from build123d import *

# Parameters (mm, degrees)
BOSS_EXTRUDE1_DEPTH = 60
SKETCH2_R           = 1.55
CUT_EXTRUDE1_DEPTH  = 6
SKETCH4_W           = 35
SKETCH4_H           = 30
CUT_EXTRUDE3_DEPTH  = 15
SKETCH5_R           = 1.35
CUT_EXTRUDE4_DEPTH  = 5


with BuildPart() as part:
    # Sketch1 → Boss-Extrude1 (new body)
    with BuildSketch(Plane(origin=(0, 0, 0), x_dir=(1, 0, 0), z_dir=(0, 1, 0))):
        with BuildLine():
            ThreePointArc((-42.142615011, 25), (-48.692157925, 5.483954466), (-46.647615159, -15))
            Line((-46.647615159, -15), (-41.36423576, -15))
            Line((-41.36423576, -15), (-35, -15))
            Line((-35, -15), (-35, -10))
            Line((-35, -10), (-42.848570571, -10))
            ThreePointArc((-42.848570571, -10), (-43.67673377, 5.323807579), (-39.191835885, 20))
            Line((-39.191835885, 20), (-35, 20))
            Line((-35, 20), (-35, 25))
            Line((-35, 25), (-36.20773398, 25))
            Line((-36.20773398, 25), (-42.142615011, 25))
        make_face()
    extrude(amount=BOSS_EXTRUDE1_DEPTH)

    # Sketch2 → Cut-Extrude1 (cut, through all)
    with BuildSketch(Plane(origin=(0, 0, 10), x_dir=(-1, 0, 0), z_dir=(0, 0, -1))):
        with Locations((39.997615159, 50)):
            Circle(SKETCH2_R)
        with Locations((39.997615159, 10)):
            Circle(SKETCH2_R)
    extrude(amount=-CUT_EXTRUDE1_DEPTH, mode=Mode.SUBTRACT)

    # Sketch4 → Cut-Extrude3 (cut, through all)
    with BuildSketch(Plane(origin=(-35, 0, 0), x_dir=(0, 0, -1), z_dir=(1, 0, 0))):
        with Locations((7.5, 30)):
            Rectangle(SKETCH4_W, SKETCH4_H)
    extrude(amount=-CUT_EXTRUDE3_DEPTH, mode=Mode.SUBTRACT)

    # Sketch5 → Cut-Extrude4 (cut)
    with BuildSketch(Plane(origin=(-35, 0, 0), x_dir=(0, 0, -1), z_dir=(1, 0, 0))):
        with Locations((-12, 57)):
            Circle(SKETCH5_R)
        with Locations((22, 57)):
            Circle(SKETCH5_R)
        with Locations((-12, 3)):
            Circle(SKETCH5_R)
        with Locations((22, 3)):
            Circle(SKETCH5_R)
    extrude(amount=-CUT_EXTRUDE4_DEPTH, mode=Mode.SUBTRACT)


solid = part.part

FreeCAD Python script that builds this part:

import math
import FreeCAD as App
import Part
import Sketcher
from FreeCAD import Vector


def add_polygon(sketch, points):
    """Adds a closed chain of lines whose ends are joined by coincident constraints."""
    first, n = sketch.GeometryCount, len(points)
    for a, b in zip(points, points[1:] + points[:1]):
        sketch.addGeometry(Part.LineSegment(App.Vector(*a, 0), App.Vector(*b, 0)), False)
    for i in range(n):
        sketch.addConstraint(Sketcher.Constraint("Coincident", first + i, 2, first + (i + 1) % n, 1))

doc = App.newDocument("Part")
body = doc.addObject("PartDesign::Body", "Body")

# Sketch on XZ plane
sketch1 = doc.addObject("Sketcher::SketchObject", "Sketch")
body.addObject(sketch1)
sketch1.AttachmentSupport = (doc.XZ_Plane, [""])
sketch1.MapMode = "FlatFace"
sketch1.addGeometry([
    Part.ArcOfCircle(Part.Circle(Vector(0, 0, 0), Vector(0, 0, 1), 49), math.radians(162), math.radians(211)),  # 0
    Part.LineSegment(Vector(-46.6, 15, 0), Vector(-35, 15, 0)),  # 1
    Part.LineSegment(Vector(-35, 15, 0), Vector(-35, 10, 0)),  # 2
    Part.LineSegment(Vector(-35, 10, 0), Vector(-42.8, 10, 0)),  # 3
    Part.ArcOfCircle(Part.Circle(Vector(0, 0, 0), Vector(0, 0, 1), 44), math.radians(167), math.radians(207)),  # 4
    Part.LineSegment(Vector(-39.2, -20, 0), Vector(-35, -20, 0)),  # 5
    Part.LineSegment(Vector(-35, -20, 0), Vector(-35, -25, 0)),  # 6
    Part.LineSegment(Vector(-35, -25, 0), Vector(-42.1, -25, 0)),  # 7
], False)
sketch1.addConstraint([
    Sketcher.Constraint("Coincident", 0, 1, 1, 1),
    Sketcher.Constraint("Coincident", 1, 2, 2, 1),
    Sketcher.Constraint("Coincident", 2, 2, 3, 1),
    Sketcher.Constraint("Coincident", 3, 2, 4, 1),
    Sketcher.Constraint("Coincident", 4, 2, 5, 1),
    Sketcher.Constraint("Coincident", 5, 2, 6, 1),
    Sketcher.Constraint("Coincident", 6, 2, 7, 1),
    Sketcher.Constraint("Coincident", 7, 2, 0, 2),
    Sketcher.Constraint("Horizontal", 1),
    Sketcher.Constraint("Vertical", 2),
    Sketcher.Constraint("Horizontal", 3),
    Sketcher.Constraint("Horizontal", 5),
    Sketcher.Constraint("Vertical", 6),
    Sketcher.Constraint("Horizontal", 7),
    Sketcher.Constraint("Coincident", 0, 3, -1, 1),
    Sketcher.Constraint("Coincident", 4, 3, -1, 1),
    Sketcher.Constraint("Vertical", 2, 2, 5, 2),
    Sketcher.Constraint("Equal", 2, 6),
    Sketcher.Constraint("Radius", 0, 49.0),
    Sketcher.Constraint("Radius", 4, 44.0),
    Sketcher.Constraint("DistanceY", 2, 2, 2, 1, 5.0),
    Sketcher.Constraint("DistanceY", -1, 1, 0, 1, 15.0),
    Sketcher.Constraint("DistanceX", 1, 2, -1, 1, 35.0),
    Sketcher.Constraint("DistanceY", 4, 2, -1, 1, 20.0),
])
pad1 = doc.addObject("PartDesign::Pad", "Pad")
body.addObject(pad1)
pad1.Profile = sketch1
pad1.Length = 60
pad1.Reversed = True

# Sketch on XY plane
sketch2 = doc.addObject("Sketcher::SketchObject", "Sketch001")
body.addObject(sketch2)
sketch2.AttachmentSupport = (doc.XY_Plane, [""])
sketch2.MapMode = "FlatFace"
sketch2.AttachmentOffset = App.Placement(Vector(0, 0, 10), App.Rotation())
sketch2.addGeometry([
    Part.Circle(Vector(-40, 50, 0), Vector(0, 0, 1), 1.6),
    Part.Circle(Vector(-40, 10, 0), Vector(0, 0, 1), 1.6),
], False)
sketch2.addConstraint([
    Sketcher.Constraint("Equal", 0, 1),
    Sketcher.Constraint("Vertical", 0, 3, 1, 3),
    Sketcher.Constraint("Diameter", 0, 3.1),
    Sketcher.Constraint("DistanceY", -1, 1, 0, 3, 50.0),
    Sketcher.Constraint("DistanceY", -1, 1, 1, 3, 10.0),
    Sketcher.Constraint("DistanceX", 0, 3, -1, 1, 39.997615),
])
pocket1 = doc.addObject("PartDesign::Pocket", "Pocket")
body.addObject(pocket1)
pocket1.Profile = sketch2
pocket1.Type = "ThroughAll"
pocket1.Reversed = True

# Sketch on YZ plane
sketch3 = doc.addObject("Sketcher::SketchObject", "Sketch002")
body.addObject(sketch3)
sketch3.AttachmentSupport = (doc.YZ_Plane, [""])
sketch3.MapMode = "FlatFace"
sketch3.AttachmentOffset = App.Placement(Vector(0, 0, -35), App.Rotation())
add_polygon(sketch3, [(45, 10), (15, 10), (15, -25), (45, -25)])  # lines 0-3
sketch3.addConstraint([
    Sketcher.Constraint("Horizontal", 0),
    Sketcher.Constraint("Vertical", 1),
    Sketcher.Constraint("Horizontal", 2),
    Sketcher.Constraint("Vertical", 3),
    Sketcher.Constraint("DistanceX", 0, 2, 0, 1, 30.0),
    Sketcher.Constraint("DistanceY", 1, 2, 1, 1, 35.0),
    Sketcher.Constraint("DistanceX", -1, 1, 0, 2, 15.0),
    Sketcher.Constraint("DistanceY", -1, 1, 0, 2, 10.0),
])
pocket2 = doc.addObject("PartDesign::Pocket", "Pocket001")
body.addObject(pocket2)
pocket2.Profile = sketch3
pocket2.Type = "ThroughAll"

# Sketch on YZ plane
sketch4 = doc.addObject("Sketcher::SketchObject", "Sketch003")
body.addObject(sketch4)
sketch4.AttachmentSupport = (doc.YZ_Plane, [""])
sketch4.MapMode = "FlatFace"
sketch4.AttachmentOffset = App.Placement(Vector(0, 0, -35), App.Rotation())
sketch4.addGeometry([
    Part.Circle(Vector(57, 12, 0), Vector(0, 0, 1), 1.4),
    Part.Circle(Vector(57, -22, 0), Vector(0, 0, 1), 1.4),
    Part.Circle(Vector(3, 12, 0), Vector(0, 0, 1), 1.4),
    Part.Circle(Vector(3, -22, 0), Vector(0, 0, 1), 1.4),
], False)
sketch4.addConstraint([
    Sketcher.Constraint("Equal", 0, 1),
    Sketcher.Constraint("Equal", 1, 2),
    Sketcher.Constraint("Equal", 2, 3),
    Sketcher.Constraint("Horizontal", 0, 3, 2, 3),
    Sketcher.Constraint("Horizontal", 1, 3, 3, 3),
    Sketcher.Constraint("Vertical", 0, 3, 1, 3),
    Sketcher.Constraint("Vertical", 2, 3, 3, 3),
    Sketcher.Constraint("Diameter", 0, 2.7),
    Sketcher.Constraint("DistanceX", -1, 1, 0, 3, 57.0),
    Sketcher.Constraint("DistanceY", -1, 1, 0, 3, 12.0),
    Sketcher.Constraint("DistanceY", 1, 3, -1, 1, 22.0),
    Sketcher.Constraint("DistanceX", -1, 1, 2, 3, 3.0),
])
pocket3 = doc.addObject("PartDesign::Pocket", "Pocket002")
body.addObject(pocket3)
pocket3.Profile = sketch4
pocket3.Length = 5

doc.recompute()
